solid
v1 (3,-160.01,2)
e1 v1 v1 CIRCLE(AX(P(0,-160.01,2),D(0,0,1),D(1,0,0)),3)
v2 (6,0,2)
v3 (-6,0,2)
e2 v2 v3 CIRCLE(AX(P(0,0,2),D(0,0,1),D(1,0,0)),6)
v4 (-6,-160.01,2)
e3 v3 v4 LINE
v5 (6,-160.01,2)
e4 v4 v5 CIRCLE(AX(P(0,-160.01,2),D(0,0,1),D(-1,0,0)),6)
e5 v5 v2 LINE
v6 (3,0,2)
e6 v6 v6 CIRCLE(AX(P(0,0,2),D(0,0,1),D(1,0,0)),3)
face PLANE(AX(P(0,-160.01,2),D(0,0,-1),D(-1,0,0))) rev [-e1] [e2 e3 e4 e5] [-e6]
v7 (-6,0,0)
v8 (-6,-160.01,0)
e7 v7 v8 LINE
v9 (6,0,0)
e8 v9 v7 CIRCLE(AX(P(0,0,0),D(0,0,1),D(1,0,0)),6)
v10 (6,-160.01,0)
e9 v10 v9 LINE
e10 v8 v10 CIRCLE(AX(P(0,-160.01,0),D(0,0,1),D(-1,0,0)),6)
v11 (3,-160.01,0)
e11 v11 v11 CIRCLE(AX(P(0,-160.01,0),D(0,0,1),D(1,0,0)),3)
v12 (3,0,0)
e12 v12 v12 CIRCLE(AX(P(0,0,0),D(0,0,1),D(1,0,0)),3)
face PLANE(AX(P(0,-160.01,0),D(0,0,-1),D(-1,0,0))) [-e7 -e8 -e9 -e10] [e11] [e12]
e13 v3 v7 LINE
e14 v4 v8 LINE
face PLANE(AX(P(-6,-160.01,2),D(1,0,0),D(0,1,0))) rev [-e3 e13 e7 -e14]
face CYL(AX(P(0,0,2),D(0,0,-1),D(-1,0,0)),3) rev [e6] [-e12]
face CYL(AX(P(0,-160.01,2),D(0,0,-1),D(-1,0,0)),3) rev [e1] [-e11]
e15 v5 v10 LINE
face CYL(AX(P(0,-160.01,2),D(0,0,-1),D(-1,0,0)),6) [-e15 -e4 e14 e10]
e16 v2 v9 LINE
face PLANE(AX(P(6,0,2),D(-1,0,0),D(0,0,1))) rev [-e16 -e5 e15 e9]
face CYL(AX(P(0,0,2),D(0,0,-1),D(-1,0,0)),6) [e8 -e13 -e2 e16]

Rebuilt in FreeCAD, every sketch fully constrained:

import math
import FreeCAD as App
import Part
import Sketcher
from FreeCAD import Vector

doc = App.newDocument("Part")
params = doc.addObject("Spreadsheet::Sheet", "Params")
for row, (alias, value) in enumerate([
    ("sketch1_diameter", "6 mm"),
    ("sketch1_radius", "6 mm"),
    ("sketch1_height", "160.01 mm"),
    ("pad1_length", "2 mm"),
], start=1):
    params.set(f"A{row}", alias)
    params.set(f"B{row}", "=" + value)
    params.setAlias(f"B{row}", alias)

body = doc.addObject("PartDesign::Body", "Body")

# Sketch on XY plane
sketch1 = doc.addObject("Sketcher::SketchObject", "Sketch")
body.addObject(sketch1)
sketch1.AttachmentSupport = (doc.XY_Plane, [""])
sketch1.MapMode = "FlatFace"
sketch1.addGeometry([
    Part.LineSegment(Vector(6, -160, 0), Vector(6, 0, 0)),  # 0
    Part.ArcOfCircle(Part.Circle(Vector(0, 0, 0), Vector(0, 0, 1), 6), math.radians(0), math.radians(180)),  # 1
    Part.LineSegment(Vector(-6, 0, 0), Vector(-6, -160, 0)),  # 2
    Part.ArcOfCircle(Part.Circle(Vector(0, -160, 0), Vector(0, 0, 1), 6), math.radians(180), math.radians(360)),  # 3
    Part.Circle(Vector(0, -160, 0), Vector(0, 0, 1), 3),  # 4
    Part.Circle(Vector(0, 0, 0), Vector(0, 0, 1), 3),  # 5
], False)
sketch1.addConstraint([
    Sketcher.Constraint("Tangent", 0, 2, 1, 1),
    Sketcher.Constraint("Tangent", 1, 2, 2, 1),
    Sketcher.Constraint("Tangent", 2, 2, 3, 1),
    Sketcher.Constraint("Tangent", 3, 2, 0, 1),
    Sketcher.Constraint("Vertical", 0),
    Sketcher.Constraint("Vertical", 2),
    Sketcher.Constraint("Coincident", 1, 3, -1, 1),
    Sketcher.Constraint("Coincident", 5, 3, -1, 1),
    Sketcher.Constraint("Coincident", 4, 3, 3, 3),
    Sketcher.Constraint("Equal", 4, 5),
    Sketcher.Constraint("Diameter", 4, 6.0),
    Sketcher.Constraint("Radius", 1, 6.0),
    Sketcher.Constraint("DistanceY", 0, 1, 0, 2, 160.01),
])
sketch1.setExpression("Constraints[10]", "Params.sketch1_diameter")
sketch1.setExpression("Constraints[11]", "Params.sketch1_radius")
sketch1.setExpression("Constraints[12]", "Params.sketch1_height")
pad1 = doc.addObject("PartDesign::Pad", "Pad")
body.addObject(pad1)
pad1.Profile = sketch1
pad1.setExpression("Length", "Params.pad1_length")

doc.recompute()
